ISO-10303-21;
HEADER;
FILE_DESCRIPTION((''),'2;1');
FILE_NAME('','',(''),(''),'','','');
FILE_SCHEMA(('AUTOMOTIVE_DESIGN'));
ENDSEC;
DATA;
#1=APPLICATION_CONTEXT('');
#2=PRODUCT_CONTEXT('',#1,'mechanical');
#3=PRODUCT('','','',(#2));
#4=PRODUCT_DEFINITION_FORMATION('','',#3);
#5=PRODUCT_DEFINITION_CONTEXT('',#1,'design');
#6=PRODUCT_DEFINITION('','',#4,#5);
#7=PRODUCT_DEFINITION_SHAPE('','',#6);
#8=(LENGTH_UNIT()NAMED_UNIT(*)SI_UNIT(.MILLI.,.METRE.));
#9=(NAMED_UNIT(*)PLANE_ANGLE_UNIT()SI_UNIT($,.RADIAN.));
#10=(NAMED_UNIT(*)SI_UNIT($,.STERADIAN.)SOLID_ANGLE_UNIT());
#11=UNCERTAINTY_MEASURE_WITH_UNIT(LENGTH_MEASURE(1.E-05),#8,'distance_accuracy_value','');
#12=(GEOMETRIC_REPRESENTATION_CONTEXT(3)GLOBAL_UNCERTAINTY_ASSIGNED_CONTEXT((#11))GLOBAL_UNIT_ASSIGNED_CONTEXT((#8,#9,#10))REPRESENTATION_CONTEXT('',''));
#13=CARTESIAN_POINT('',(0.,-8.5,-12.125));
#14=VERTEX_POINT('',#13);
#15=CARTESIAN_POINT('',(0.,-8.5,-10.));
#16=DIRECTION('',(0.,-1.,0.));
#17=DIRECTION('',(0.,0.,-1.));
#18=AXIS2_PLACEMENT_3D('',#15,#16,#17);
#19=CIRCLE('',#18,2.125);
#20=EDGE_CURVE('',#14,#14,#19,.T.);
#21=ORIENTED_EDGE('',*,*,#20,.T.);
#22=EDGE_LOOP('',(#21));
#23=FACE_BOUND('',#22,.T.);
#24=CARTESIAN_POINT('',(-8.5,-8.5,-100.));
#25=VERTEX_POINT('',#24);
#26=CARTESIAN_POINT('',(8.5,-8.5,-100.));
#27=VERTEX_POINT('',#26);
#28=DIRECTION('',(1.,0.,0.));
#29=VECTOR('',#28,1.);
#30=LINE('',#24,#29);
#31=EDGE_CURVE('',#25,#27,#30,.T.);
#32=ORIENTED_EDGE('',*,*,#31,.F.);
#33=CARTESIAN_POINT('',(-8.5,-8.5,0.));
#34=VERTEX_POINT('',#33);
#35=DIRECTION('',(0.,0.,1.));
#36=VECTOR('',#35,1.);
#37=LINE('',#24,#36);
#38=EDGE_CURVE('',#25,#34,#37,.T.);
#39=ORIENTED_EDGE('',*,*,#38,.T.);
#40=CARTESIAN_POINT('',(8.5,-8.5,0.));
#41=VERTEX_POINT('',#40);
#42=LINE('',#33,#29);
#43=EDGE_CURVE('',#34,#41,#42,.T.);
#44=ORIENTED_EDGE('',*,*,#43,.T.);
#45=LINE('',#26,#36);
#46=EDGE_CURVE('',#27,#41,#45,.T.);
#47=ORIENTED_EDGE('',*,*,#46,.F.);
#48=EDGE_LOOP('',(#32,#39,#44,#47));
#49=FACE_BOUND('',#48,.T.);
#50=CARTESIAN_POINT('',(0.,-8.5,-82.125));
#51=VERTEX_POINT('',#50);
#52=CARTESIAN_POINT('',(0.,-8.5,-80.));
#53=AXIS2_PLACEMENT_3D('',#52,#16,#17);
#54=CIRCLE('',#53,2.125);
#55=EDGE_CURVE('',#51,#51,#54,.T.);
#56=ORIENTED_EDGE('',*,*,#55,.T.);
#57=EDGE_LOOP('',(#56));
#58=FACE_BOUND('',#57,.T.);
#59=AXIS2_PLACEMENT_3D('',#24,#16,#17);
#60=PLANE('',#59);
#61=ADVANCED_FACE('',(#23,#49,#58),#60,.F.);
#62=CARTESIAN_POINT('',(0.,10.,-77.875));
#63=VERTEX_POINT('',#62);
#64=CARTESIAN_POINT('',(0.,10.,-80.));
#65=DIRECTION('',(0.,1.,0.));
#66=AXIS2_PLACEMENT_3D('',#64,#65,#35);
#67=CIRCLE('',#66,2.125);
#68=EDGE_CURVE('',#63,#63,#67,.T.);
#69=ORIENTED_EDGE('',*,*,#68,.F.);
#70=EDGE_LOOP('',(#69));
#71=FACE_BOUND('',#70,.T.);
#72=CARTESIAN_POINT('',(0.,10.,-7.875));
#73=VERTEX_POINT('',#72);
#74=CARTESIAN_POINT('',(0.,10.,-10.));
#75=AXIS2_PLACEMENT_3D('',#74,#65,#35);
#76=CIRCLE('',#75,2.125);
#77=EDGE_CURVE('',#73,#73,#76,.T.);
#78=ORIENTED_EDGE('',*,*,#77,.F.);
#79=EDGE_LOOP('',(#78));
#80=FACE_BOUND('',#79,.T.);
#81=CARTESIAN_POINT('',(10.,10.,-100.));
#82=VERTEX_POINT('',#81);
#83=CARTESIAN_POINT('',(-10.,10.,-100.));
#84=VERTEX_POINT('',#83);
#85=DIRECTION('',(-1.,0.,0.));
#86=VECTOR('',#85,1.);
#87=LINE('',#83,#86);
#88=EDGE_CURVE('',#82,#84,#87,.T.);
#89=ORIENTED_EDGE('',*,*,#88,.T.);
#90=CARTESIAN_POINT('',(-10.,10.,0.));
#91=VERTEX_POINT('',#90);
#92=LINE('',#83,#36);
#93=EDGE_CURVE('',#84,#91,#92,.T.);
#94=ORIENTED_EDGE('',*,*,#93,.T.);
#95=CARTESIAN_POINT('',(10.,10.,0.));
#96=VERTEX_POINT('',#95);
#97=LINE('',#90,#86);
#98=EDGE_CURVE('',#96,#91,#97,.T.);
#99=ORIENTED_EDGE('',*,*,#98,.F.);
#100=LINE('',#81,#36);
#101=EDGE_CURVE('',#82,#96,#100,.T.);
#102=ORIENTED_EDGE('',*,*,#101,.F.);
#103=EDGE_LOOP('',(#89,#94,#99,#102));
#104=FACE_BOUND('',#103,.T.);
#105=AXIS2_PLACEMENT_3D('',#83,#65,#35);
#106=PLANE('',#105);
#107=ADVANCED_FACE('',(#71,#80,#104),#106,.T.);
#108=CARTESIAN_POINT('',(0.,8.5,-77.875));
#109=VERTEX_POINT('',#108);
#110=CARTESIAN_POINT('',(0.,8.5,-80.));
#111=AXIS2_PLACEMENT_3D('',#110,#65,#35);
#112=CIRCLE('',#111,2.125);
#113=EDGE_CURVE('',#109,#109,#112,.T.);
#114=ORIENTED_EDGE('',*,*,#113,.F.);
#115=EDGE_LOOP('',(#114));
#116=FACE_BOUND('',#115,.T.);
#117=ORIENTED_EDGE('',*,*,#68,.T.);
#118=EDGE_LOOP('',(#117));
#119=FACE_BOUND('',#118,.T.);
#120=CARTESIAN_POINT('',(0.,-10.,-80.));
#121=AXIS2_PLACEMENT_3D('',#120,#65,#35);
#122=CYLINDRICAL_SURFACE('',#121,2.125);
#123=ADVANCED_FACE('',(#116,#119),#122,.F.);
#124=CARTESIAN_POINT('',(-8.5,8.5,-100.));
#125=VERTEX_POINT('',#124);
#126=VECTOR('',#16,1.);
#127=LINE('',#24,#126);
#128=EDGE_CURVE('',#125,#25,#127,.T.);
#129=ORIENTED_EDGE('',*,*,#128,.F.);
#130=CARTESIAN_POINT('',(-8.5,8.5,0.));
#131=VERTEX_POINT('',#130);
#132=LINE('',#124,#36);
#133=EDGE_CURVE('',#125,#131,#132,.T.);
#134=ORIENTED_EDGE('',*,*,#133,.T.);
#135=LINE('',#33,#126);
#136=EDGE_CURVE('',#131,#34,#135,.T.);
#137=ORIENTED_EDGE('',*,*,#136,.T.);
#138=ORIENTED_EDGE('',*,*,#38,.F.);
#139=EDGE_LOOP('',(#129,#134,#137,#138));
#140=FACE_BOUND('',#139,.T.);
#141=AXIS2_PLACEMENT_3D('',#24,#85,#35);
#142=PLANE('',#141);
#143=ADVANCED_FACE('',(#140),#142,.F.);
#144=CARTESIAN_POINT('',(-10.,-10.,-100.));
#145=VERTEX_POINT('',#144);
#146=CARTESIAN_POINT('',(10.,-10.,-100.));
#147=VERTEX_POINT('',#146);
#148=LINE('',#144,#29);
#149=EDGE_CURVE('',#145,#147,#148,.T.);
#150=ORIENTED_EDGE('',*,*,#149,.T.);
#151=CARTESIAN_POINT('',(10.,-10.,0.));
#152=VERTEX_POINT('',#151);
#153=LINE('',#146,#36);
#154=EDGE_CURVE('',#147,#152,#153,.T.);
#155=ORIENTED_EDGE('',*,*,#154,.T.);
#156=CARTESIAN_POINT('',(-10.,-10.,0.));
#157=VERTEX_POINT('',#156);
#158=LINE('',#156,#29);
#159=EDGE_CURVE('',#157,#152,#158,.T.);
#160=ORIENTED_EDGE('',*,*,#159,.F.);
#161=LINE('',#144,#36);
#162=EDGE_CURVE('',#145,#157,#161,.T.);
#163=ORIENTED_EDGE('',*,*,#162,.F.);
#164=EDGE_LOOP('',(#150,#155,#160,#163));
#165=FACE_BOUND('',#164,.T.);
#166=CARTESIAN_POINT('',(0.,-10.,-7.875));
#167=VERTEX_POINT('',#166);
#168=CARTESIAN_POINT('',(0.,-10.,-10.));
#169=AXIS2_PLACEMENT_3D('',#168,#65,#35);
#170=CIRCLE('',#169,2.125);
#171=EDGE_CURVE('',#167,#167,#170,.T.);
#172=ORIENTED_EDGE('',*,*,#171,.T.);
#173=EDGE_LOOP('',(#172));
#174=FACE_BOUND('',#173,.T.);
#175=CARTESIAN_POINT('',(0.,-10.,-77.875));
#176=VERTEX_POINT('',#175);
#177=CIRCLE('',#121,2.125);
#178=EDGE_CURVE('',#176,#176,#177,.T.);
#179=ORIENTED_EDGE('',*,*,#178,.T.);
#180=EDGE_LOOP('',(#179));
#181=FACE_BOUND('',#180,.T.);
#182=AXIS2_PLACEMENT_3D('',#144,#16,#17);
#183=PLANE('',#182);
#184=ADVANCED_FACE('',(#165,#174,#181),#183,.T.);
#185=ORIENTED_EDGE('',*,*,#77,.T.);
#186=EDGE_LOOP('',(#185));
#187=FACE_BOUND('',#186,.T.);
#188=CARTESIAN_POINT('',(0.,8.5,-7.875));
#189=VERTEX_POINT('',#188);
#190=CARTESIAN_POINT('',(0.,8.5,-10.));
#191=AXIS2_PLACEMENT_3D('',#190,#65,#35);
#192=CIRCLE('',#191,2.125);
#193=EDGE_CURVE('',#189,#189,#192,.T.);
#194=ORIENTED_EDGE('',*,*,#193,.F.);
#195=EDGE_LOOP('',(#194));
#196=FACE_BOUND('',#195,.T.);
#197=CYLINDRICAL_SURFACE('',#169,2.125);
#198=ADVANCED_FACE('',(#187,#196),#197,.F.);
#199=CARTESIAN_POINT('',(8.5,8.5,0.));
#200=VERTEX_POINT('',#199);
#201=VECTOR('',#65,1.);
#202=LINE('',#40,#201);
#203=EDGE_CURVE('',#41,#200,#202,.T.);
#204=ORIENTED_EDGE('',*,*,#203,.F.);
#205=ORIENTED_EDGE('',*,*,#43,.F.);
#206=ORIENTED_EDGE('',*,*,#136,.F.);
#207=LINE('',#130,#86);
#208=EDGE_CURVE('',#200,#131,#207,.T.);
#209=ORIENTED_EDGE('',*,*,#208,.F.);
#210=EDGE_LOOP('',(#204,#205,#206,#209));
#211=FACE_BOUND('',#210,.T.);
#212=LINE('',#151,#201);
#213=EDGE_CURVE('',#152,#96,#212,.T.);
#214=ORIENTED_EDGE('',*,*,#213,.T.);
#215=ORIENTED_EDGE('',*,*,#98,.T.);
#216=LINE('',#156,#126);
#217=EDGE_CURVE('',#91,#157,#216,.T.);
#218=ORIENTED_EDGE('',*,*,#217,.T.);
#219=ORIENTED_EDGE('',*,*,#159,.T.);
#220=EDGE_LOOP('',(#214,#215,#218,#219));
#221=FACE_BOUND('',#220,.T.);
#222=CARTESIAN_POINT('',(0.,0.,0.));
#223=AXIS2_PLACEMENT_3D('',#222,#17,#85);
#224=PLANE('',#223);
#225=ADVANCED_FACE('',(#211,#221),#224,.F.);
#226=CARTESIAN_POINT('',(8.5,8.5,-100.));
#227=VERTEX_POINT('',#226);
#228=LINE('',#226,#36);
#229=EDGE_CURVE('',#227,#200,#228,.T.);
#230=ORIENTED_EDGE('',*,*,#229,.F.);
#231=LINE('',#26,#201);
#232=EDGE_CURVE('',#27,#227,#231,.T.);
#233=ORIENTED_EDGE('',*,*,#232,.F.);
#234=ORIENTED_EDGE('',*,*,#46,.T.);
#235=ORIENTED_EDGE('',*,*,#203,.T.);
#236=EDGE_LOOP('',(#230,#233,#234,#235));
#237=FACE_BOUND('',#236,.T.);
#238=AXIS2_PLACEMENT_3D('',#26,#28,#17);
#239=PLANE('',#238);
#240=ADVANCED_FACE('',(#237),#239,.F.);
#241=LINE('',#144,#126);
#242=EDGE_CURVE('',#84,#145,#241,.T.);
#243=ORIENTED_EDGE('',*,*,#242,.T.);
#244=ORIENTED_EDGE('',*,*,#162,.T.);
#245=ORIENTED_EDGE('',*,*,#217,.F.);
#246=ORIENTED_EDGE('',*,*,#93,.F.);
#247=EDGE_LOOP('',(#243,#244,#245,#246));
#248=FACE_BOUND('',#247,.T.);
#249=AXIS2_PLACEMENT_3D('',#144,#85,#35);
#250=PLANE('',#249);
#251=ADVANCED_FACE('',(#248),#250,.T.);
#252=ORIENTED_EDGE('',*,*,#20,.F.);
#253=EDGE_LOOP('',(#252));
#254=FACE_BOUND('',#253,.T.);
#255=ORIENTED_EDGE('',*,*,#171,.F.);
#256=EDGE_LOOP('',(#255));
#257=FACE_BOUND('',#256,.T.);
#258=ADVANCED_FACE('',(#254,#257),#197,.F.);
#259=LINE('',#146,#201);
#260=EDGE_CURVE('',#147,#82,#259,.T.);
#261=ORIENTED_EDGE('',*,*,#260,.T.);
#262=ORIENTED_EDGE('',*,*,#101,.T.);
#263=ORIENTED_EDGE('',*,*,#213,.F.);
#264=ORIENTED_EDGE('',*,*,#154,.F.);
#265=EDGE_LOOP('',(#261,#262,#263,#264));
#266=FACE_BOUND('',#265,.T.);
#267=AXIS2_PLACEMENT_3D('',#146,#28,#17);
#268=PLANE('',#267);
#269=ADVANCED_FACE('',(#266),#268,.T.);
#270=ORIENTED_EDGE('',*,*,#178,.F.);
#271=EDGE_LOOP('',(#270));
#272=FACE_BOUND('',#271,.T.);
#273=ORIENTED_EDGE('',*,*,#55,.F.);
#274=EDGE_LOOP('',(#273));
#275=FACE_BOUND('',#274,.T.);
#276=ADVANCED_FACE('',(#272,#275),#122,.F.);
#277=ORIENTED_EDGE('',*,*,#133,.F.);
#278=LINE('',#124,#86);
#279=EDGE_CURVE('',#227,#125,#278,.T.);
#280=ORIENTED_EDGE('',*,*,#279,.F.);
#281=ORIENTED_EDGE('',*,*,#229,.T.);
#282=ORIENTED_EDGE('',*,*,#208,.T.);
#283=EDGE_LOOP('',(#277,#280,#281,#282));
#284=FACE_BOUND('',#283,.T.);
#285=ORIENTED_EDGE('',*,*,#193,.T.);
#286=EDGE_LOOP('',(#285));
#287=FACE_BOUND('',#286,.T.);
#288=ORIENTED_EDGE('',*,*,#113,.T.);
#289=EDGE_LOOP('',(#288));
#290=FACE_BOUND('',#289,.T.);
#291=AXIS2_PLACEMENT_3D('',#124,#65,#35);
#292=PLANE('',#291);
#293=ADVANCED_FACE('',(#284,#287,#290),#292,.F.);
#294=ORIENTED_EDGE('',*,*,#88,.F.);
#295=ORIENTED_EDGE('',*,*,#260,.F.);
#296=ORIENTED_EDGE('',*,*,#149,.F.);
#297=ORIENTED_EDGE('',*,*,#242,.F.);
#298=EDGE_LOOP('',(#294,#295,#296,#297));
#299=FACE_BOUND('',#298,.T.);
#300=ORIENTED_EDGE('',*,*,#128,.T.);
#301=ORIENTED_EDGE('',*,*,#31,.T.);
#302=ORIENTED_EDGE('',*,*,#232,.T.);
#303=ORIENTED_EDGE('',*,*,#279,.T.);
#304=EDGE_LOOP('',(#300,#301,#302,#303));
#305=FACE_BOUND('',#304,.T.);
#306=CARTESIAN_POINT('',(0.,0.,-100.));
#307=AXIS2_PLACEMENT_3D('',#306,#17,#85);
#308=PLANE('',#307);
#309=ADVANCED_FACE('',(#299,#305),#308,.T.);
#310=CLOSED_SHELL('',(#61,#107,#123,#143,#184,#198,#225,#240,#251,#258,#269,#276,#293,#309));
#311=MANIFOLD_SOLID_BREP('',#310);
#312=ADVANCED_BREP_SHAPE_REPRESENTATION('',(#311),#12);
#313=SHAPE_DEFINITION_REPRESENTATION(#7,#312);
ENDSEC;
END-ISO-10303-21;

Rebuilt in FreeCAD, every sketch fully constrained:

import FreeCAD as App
import Part
import Sketcher

doc = App.newDocument("Part")
body = doc.addObject("PartDesign::Body", "Body")

sketch1 = body.newObject("Sketcher::SketchObject", "Sketch")
sketch1.AttachmentSupport = (doc.getObject("XY_Plane"), [""])
sketch1.MapMode = "FlatFace"
sketch1.addGeometry([
    Part.LineSegment(App.Vector(-10, 10, 0), App.Vector(-10, -10, 0)),
    Part.LineSegment(App.Vector(-10, -10, 0), App.Vector(10, -10, 0)),
    Part.LineSegment(App.Vector(10, -10, 0), App.Vector(10, 10, 0)),
    Part.LineSegment(App.Vector(10, 10, 0), App.Vector(-10, 10, 0)),
    Part.LineSegment(App.Vector(8, -8, 0), App.Vector(-8, -8, 0)),
    Part.LineSegment(App.Vector(-8, -8, 0), App.Vector(-8, 8, 0)),
    Part.LineSegment(App.Vector(-8, 8, 0), App.Vector(8, 8, 0)),
    Part.LineSegment(App.Vector(8, 8, 0), App.Vector(8, -8, 0)),
], False)
sketch1.addConstraint([
    Sketcher.Constraint("Coincident", 0, 2, 1, 1),
    Sketcher.Constraint("Coincident", 1, 2, 2, 1),
    Sketcher.Constraint("Coincident", 2, 2, 3, 1),
    Sketcher.Constraint("Coincident", 3, 2, 0, 1),
    Sketcher.Constraint("Coincident", 4, 2, 5, 1),
    Sketcher.Constraint("Coincident", 5, 2, 6, 1),
    Sketcher.Constraint("Coincident", 6, 2, 7, 1),
    Sketcher.Constraint("Coincident", 7, 2, 4, 1),
    Sketcher.Constraint("Vertical", 0),
    Sketcher.Constraint("Horizontal", 1),
    Sketcher.Constraint("Vertical", 2),
    Sketcher.Constraint("Horizontal", 3),
    Sketcher.Constraint("Horizontal", 4),
    Sketcher.Constraint("Vertical", 5),
    Sketcher.Constraint("Horizontal", 6),
    Sketcher.Constraint("Vertical", 7),
    Sketcher.Constraint("Symmetric", 0, 2, 2, 2, -1, 1),
    Sketcher.Constraint("Symmetric", 4, 2, 6, 2, -1, 1),
    Sketcher.Constraint("Equal", 3, 0),
    Sketcher.Constraint("Equal", 6, 5),
    Sketcher.Constraint("DistanceX", 1, 1, 1, 2, 20.0),
    Sketcher.Constraint("DistanceX", 4, 2, 4, 1, 17.0),
])
pad1 = body.newObject("PartDesign::Pad", "Pad")
pad1.Profile = sketch1
pad1.Length = 100
pad1.Reversed = True

sketch2 = body.newObject("Sketcher::SketchObject", "Sketch001")
sketch2.AttachmentSupport = (doc.getObject("XZ_Plane"), [""])
sketch2.MapMode = "FlatFace"
sketch2.AttachmentOffset = App.Placement(App.Vector(0, 0, -10), App.Rotation())
sketch2.addGeometry([
    Part.Circle(App.Vector(0, -10, 0), App.Vector(0, 0, 1), 2.1),
    Part.Circle(App.Vector(0, -80, 0), App.Vector(0, 0, 1), 2.1),
    Part.Circle(App.Vector(0, -150, 0), App.Vector(0, 0, 1), 2.1),
], False)
sketch2.addConstraint([
    Sketcher.Constraint("Equal", 0, 1),
    Sketcher.Constraint("Equal", 1, 2),
    Sketcher.Constraint("PointOnObject", 0, 3, -2),
    Sketcher.Constraint("PointOnObject", 1, 3, -2),
    Sketcher.Constraint("PointOnObject", 2, 3, -2),
    Sketcher.Constraint("Diameter", 0, 4.25),
    Sketcher.Constraint("DistanceY", 0, 3, -1, 1, 10.0),
    Sketcher.Constraint("DistanceY", 1, 3, -1, 1, 80.0),
    Sketcher.Constraint("DistanceY", 2, 3, -1, 1, 150.0),
])
pocket1 = body.newObject("PartDesign::Pocket", "Pocket")
pocket1.Profile = sketch2
pocket1.Type = "ThroughAll"
pocket1.Reversed = True

doc.recompute()
